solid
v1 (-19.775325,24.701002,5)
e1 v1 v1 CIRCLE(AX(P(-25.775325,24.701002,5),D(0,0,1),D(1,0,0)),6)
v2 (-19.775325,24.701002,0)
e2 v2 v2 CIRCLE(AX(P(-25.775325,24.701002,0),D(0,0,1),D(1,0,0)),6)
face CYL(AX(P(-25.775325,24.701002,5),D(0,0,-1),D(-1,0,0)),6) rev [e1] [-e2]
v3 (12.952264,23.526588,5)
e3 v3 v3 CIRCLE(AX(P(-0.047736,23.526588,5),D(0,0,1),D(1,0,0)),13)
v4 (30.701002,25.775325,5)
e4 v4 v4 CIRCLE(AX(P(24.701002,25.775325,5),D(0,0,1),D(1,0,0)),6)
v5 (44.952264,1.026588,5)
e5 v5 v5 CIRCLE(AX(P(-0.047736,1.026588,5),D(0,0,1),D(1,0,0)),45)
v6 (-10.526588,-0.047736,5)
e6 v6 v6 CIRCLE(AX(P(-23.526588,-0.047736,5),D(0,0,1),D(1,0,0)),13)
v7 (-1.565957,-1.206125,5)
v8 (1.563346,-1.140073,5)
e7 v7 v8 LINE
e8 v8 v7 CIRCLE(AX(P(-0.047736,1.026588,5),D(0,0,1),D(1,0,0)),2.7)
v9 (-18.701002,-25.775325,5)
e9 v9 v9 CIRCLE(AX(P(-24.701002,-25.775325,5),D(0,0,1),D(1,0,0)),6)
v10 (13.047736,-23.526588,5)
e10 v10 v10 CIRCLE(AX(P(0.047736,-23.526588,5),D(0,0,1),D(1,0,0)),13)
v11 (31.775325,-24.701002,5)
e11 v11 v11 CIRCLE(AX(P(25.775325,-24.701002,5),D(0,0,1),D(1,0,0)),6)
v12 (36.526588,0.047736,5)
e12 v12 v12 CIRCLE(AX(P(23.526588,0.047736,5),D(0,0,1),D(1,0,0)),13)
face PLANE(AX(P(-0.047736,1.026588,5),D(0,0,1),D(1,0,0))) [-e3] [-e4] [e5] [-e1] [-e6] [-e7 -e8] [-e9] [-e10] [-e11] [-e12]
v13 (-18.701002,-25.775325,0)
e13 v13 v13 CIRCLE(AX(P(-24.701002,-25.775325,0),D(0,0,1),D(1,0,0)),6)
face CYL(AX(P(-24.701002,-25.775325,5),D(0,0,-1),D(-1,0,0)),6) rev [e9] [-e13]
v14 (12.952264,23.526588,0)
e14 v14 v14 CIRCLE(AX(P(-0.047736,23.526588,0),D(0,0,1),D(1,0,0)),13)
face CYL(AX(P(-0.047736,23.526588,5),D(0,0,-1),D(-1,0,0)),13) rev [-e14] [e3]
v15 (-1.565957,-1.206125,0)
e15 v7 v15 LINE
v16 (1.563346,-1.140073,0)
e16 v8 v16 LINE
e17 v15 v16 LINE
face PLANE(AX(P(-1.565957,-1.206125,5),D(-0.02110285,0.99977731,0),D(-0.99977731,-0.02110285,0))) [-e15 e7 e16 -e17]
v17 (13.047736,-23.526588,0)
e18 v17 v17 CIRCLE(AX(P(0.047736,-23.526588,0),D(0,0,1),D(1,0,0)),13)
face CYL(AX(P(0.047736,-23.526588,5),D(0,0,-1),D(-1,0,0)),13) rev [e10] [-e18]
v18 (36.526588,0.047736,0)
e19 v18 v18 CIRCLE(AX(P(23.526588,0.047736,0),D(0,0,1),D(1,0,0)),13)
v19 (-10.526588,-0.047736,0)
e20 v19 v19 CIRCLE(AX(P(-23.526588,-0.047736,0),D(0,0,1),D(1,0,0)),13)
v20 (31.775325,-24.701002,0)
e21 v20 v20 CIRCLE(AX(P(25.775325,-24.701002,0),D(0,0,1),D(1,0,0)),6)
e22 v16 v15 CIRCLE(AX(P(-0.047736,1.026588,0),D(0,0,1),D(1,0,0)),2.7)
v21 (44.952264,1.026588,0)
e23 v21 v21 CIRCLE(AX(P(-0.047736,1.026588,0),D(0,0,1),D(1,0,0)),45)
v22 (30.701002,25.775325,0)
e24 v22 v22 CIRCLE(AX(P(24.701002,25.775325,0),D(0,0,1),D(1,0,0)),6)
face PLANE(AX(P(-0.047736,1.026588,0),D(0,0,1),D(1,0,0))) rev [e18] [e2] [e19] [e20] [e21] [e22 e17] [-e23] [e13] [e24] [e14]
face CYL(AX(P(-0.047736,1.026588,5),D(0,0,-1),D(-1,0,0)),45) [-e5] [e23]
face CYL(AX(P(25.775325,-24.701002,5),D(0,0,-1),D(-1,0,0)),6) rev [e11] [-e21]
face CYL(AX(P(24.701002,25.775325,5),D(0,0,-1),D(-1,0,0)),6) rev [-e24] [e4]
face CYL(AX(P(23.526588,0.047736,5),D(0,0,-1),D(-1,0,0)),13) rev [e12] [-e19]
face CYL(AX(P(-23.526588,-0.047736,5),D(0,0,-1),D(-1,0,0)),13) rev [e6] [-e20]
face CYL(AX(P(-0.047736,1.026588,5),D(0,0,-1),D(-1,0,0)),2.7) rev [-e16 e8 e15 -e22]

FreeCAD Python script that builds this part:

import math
import FreeCAD as App
import Part
import Sketcher
Q = App.Units.Quantity

doc = App.newDocument("Part")
params = doc.addObject("Spreadsheet::Sheet", "Params")
for row, (alias, value) in enumerate([
    ("sketch1_diameter", "90 mm"),
    ("sketch1_diameter2", "12 mm"),
    ("sketch1_diameter3", "26 mm"),
    ("sketch1_radius", "2.7 mm"),
    ("sketch1_length", "3.13 mm"),
    ("pad1_length", "5 mm"),
], start=1):
    params.set(f"A{row}", alias)
    params.set(f"B{row}", "=" + value)
    params.setAlias(f"B{row}", alias)

body = doc.addObject("PartDesign::Body", "Body")

sketch1 = body.newObject("Sketcher::SketchObject", "Sketch")
sketch1.AttachmentSupport = (doc.getObject("XY_Plane"), [""])
sketch1.MapMode = "FlatFace"
sketch1.addGeometry(Part.Circle(App.Vector(0, 1, 0), App.Vector(0, 0, 1), 45), False)
sketch1.addGeometry(Part.Circle(App.Vector(-24.7, -25.8, 0), App.Vector(0, 0, 1), 6), False)
sketch1.addGeometry(Part.Circle(App.Vector(-23.5, 0, 0), App.Vector(0, 0, 1), 13), False)
sketch1.addGeometry(Part.Circle(App.Vector(0, -23.5, 0), App.Vector(0, 0, 1), 13), False)
sketch1.addGeometry(Part.Circle(App.Vector(25.8, -24.7, 0), App.Vector(0, 0, 1), 6), False)
sketch1.addGeometry(Part.LineSegment(App.Vector(1.6, -1.1, 0), App.Vector(-1.6, -1.2, 0)), False)
sketch1.addGeometry(Part.ArcOfCircle(Part.Circle(App.Vector(0, 1, 0), App.Vector(0, 0, 1), 2.7), math.radians(-53), math.radians(236)), False)
sketch1.addGeometry(Part.Circle(App.Vector(-25.8, 24.7, 0), App.Vector(0, 0, 1), 6), False)
sketch1.addGeometry(Part.Circle(App.Vector(0, 23.5, 0), App.Vector(0, 0, 1), 13), False)
sketch1.addGeometry(Part.Circle(App.Vector(23.5, 0, 0), App.Vector(0, 0, 1), 13), False)
sketch1.addGeometry(Part.Circle(App.Vector(24.7, 25.8, 0), App.Vector(0, 0, 1), 6), False)
sketch1.addConstraint(Sketcher.Constraint("Coincident", 5, 1, 6, 1))
sketch1.addConstraint(Sketcher.Constraint("Coincident", 6, 2, 5, 2))
sketch1.addConstraint(Sketcher.Constraint("Coincident", 6, 3, 0, 3))
sketch1.addConstraint(Sketcher.Constraint("Equal", 2, 3))
sketch1.addConstraint(Sketcher.Constraint("Equal", 1, 4))
sketch1.addConstraint(Sketcher.Constraint("Equal", 4, 7))
sketch1.addConstraint(Sketcher.Constraint("Equal", 3, 8))
sketch1.addConstraint(Sketcher.Constraint("Equal", 8, 9))
sketch1.addConstraint(Sketcher.Constraint("Equal", 7, 10))
sketch1.addConstraint(Sketcher.Constraint("Symmetric", 4, 3, 7, 3, -1, 1))
sketch1.addConstraint(Sketcher.Constraint("Symmetric", 3, 3, 8, 3, -1, 1))
sketch1.addConstraint(Sketcher.Constraint("Symmetric", 2, 3, 9, 3, -1, 1))
sketch1.addConstraint(Sketcher.Constraint("Symmetric", 1, 3, 10, 3, -1, 1))
sketch1.addConstraint(Sketcher.Constraint("Vertical", 6, 3, 8, 3))
sketch1.addConstraint(Sketcher.Constraint("Diameter", 0, Q("90 mm")))
sketch1.addConstraint(Sketcher.Constraint("Diameter", 1, Q("12 mm")))
sketch1.addConstraint(Sketcher.Constraint("Diameter", 2, Q("26 mm")))
sketch1.addConstraint(Sketcher.Constraint("Radius", 6, Q("2.7 mm")))
sketch1.addConstraint(Sketcher.Constraint("DistanceY", 6, 3, 8, 3, Q("22.5 mm")))
sketch1.addConstraint(Sketcher.Constraint("Distance", 5, Q("3.13 mm")))
sketch1.addConstraint(Sketcher.Constraint("DistanceX", 1, 3, -1, 1, Q("24.701002 mm")))
sketch1.addConstraint(Sketcher.Constraint("DistanceY", 4, 3, -1, 1, Q("24.701002 mm")))
sketch1.addConstraint(Sketcher.Constraint("DistanceX", 2, 3, 0, 3, Q("23.478852 mm")))
sketch1.addConstraint(Sketcher.Constraint("DistanceY", 1, 3, 2, 3, Q("25.727589 mm")))
sketch1.addConstraint(Sketcher.Constraint("DistanceX", 0, 3, 3, 3, Q("0.095471 mm")))
sketch1.addConstraint(Sketcher.Constraint("DistanceY", 3, 3, 2, 3, Q("23.478852 mm")))
sketch1.addConstraint(Sketcher.Constraint("DistanceX", 3, 3, 4, 3, Q("25.727589 mm")))
sketch1.addConstraint(Sketcher.Constraint("DistanceY", 4, 3, 0, 3, Q("25.727589 mm")))
sketch1.addConstraint(Sketcher.Constraint("DistanceX", 0, 3, 5, 1, Q("1.611081 mm")))
sketch1.setExpression("Constraints[14]", "Params.sketch1_diameter")
sketch1.setExpression("Constraints[15]", "Params.sketch1_diameter2")
sketch1.setExpression("Constraints[16]", "Params.sketch1_diameter3")
sketch1.setExpression("Constraints[17]", "Params.sketch1_radius")
sketch1.setExpression("Constraints[19]", "Params.sketch1_length")
pad1 = body.newObject("PartDesign::Pad", "Pad")
pad1.Profile = sketch1
pad1.setExpression("Length", "Params.pad1_length")

doc.recompute()
